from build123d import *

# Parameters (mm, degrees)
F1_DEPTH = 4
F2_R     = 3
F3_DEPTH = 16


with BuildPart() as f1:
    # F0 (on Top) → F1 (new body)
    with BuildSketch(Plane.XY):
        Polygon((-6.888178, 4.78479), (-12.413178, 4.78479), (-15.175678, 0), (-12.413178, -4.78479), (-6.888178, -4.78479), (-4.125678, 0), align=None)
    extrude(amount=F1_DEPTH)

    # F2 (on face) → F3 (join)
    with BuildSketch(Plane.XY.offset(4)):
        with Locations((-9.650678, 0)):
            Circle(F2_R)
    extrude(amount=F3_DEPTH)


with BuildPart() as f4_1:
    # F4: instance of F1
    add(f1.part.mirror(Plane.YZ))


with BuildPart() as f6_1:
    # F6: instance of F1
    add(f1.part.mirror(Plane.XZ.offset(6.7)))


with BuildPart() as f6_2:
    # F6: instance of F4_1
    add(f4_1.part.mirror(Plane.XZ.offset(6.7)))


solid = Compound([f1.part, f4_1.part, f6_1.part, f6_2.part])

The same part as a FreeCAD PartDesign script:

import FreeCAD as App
import Part
import Sketcher

V = App.Vector
Q = App.Units.Quantity

doc = App.newDocument("Part")
params = doc.addObject("Spreadsheet::Sheet", "Params")
for row, (alias, value) in enumerate([
    ("pad1_length", "4 mm"),
    ("sketch2_diameter", "6 mm"),
    ("pad2_length", "16 mm"),
], start=1):
    params.set(f"A{row}", alias)
    params.set(f"B{row}", "=" + value)
    params.setAlias(f"B{row}", alias)

body = doc.addObject("PartDesign::Body", "Body")

# Sketch on XY plane
sketch1 = doc.addObject("Sketcher::SketchObject", "Sketch")
body.addObject(sketch1)
sketch1.AttachmentSupport = (doc.XY_Plane, [""])
sketch1.MapMode = "FlatFace"
sketch1.addGeometry([
    Part.LineSegment(V(-7, 5, 0), V(-12, 5, 0)),  # 0
    Part.LineSegment(V(-12, 5, 0), V(-15, 0, 0)),  # 1
    Part.LineSegment(V(-15, 0, 0), V(-12, -5, 0)),  # 2
    Part.LineSegment(V(-12, -5, 0), V(-7, -5, 0)),  # 3
    Part.LineSegment(V(-7, -5, 0), V(-4, 0, 0)),  # 4
    Part.LineSegment(V(-4, 0, 0), V(-7, 5, 0)),  # 5
], False)
sketch1.addConstraint([
    Sketcher.Constraint("Coincident", 0, 2, 1, 1),
    Sketcher.Constraint("Coincident", 1, 2, 2, 1),
    Sketcher.Constraint("Coincident", 2, 2, 3, 1),
    Sketcher.Constraint("Coincident", 3, 2, 4, 1),
    Sketcher.Constraint("Coincident", 4, 2, 5, 1),
    Sketcher.Constraint("Coincident", 5, 2, 0, 1),
    Sketcher.Constraint("Horizontal", 0),
    Sketcher.Constraint("Horizontal", 3),
    Sketcher.Constraint("Symmetric", 0, 2, 2, 2, -1),
    Sketcher.Constraint("PointOnObject", 1, 2, -1),
    Sketcher.Constraint("PointOnObject", 4, 2, -1),
    Sketcher.Constraint("Parallel", 1, 4),
    Sketcher.Constraint("Parallel", 2, 5),
    Sketcher.Constraint("Angle", 1, Q("-120.000002 deg")),
    Sketcher.Constraint("DistanceX", 0, 2, 0, 1, Q("5.525 mm")),
    Sketcher.Constraint("DistanceX", 1, 2, 4, 2, Q("11.05 mm")),
    Sketcher.Constraint("DistanceX", 0, 2, -1, 1, Q("12.413178 mm")),
])
pad1 = doc.addObject("PartDesign::Pad", "Pad")
body.addObject(pad1)
pad1.Profile = sketch1
pad1.setExpression("Length", "Params.pad1_length")

# Sketch on XY plane
sketch2 = doc.addObject("Sketcher::SketchObject", "Sketch001")
body.addObject(sketch2)
sketch2.AttachmentSupport = (doc.XY_Plane, [""])
sketch2.MapMode = "FlatFace"
sketch2.AttachmentOffset = App.Placement(V(0, 0, 4), App.Rotation())
sketch2.addGeometry(Part.Circle(V(-9.7, 0, 0), V(0, 0, 1), 3), False)
sketch2.addConstraint([
    Sketcher.Constraint("PointOnObject", 0, 3, -1),
    Sketcher.Constraint("Diameter", 0, Q("6 mm")),
    Sketcher.Constraint("DistanceX", 0, 3, -1, 1, Q("9.650678 mm")),
])
sketch2.setExpression("Constraints[1]", "Params.sketch2_diameter")
pad2 = doc.addObject("PartDesign::Pad", "Pad001")
body.addObject(pad2)
pad2.Profile = sketch2
pad2.setExpression("Length", "Params.pad2_length")
body2 = doc.addObject("PartDesign::Body", "Body001")
doc.recompute()

mirroring = doc.addObject("Part::Mirroring", "Mirroring")
mirroring.Source = body
mirroring.Base = V(0, 0, 0)
mirroring.Normal = V(1, 0, 0)
body2.BaseFeature = mirroring
doc.recompute()
body3 = doc.addObject("PartDesign::Body", "Body002")
doc.recompute()

mirroring2 = doc.addObject("Part::Mirroring", "Mirroring001")
mirroring2.Source = body
mirroring2.Base = V(0, -6.7, 0)
mirroring2.Normal = V(0, -1, 0)
body3.BaseFeature = mirroring2
doc.recompute()
body4 = doc.addObject("PartDesign::Body", "Body003")
doc.recompute()

mirroring3 = doc.addObject("Part::Mirroring", "Mirroring002")
mirroring3.Source = body2
mirroring3.Base = V(0, -6.7, 0)
mirroring3.Normal = V(0, -1, 0)
body4.BaseFeature = mirroring3
doc.recompute()
mirroring.Visibility = False
mirroring2.Visibility = False
mirroring3.Visibility = False

doc.recompute()
